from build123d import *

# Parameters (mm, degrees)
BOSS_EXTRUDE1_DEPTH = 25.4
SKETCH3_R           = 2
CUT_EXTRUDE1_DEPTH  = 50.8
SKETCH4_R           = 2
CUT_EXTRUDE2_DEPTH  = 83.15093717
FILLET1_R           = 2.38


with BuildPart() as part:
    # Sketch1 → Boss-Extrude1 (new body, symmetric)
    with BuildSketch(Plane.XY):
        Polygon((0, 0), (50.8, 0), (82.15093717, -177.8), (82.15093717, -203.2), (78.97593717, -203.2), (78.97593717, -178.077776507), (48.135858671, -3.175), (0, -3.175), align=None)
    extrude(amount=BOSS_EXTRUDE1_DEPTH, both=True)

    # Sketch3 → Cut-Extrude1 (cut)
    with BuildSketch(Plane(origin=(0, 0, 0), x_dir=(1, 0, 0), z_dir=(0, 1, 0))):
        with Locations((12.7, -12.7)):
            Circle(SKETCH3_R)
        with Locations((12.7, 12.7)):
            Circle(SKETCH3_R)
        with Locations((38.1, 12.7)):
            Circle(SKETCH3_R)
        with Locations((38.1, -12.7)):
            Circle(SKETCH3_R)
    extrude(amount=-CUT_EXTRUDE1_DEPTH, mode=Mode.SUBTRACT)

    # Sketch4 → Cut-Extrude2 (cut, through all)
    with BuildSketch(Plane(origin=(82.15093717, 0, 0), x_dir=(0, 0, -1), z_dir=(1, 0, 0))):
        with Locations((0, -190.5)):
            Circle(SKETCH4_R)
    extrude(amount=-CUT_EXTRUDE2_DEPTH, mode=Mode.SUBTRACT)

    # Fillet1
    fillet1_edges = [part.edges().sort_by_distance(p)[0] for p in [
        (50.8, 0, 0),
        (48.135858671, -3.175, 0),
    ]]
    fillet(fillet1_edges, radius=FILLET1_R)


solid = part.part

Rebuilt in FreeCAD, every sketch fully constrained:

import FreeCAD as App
import Part
import Sketcher
Q = App.Units.Quantity


def edges_at(feature, points):
    """Names of the edges that pass closest to the given points."""
    edges = feature.Shape.Edges
    near = lambda p: min(range(len(edges)), key=lambda i: edges[i].distToShape(Part.Vertex(*p))[0])
    return sorted({f"Edge{near(p) + 1}" for p in points})

doc = App.newDocument("Part")
body = doc.addObject("PartDesign::Body", "Body")

sketch1 = body.newObject("Sketcher::SketchObject", "Sketch")
sketch1.AttachmentSupport = (doc.getObject("XY_Plane"), [""])
sketch1.MapMode = "FlatFace"
sketch1.addGeometry([
    Part.LineSegment(App.Vector(50.8, 0, 0), App.Vector(0, 0, 0)),
    Part.LineSegment(App.Vector(0, 0, 0), App.Vector(0, -3.2, 0)),
    Part.LineSegment(App.Vector(0, -3.2, 0), App.Vector(48.1, -3.2, 0)),
    Part.LineSegment(App.Vector(48.1, -3.2, 0), App.Vector(79, -178.1, 0)),
    Part.LineSegment(App.Vector(79, -178.1, 0), App.Vector(79, -203.2, 0)),
    Part.LineSegment(App.Vector(79, -203.2, 0), App.Vector(82.2, -203.2, 0)),
    Part.LineSegment(App.Vector(82.2, -203.2, 0), App.Vector(82.2, -177.8, 0)),
    Part.LineSegment(App.Vector(82.2, -177.8, 0), App.Vector(50.8, 0, 0)),
], False)
sketch1.addConstraint([
    Sketcher.Constraint("Coincident", 0, 2, 1, 1),
    Sketcher.Constraint("Coincident", 1, 2, 2, 1),
    Sketcher.Constraint("Coincident", 2, 2, 3, 1),
    Sketcher.Constraint("Coincident", 3, 2, 4, 1),
    Sketcher.Constraint("Coincident", 4, 2, 5, 1),
    Sketcher.Constraint("Coincident", 5, 2, 6, 1),
    Sketcher.Constraint("Coincident", 6, 2, 7, 1),
    Sketcher.Constraint("Coincident", 7, 2, 0, 1),
    Sketcher.Constraint("Horizontal", 0),
    Sketcher.Constraint("Vertical", 1),
    Sketcher.Constraint("Horizontal", 2),
    Sketcher.Constraint("Vertical", 4),
    Sketcher.Constraint("Horizontal", 5),
    Sketcher.Constraint("Vertical", 6),
    Sketcher.Constraint("Coincident", 0, 2, -1, 1),
    Sketcher.Constraint("Parallel", 3, 7),
    Sketcher.Constraint("Equal", 5, 1),
    Sketcher.Constraint("DistanceX", 0, 2, 0, 1, Q("2 in")),
    Sketcher.Constraint("DistanceY", 6, 1, 6, 2, Q("1 in")),
    Sketcher.Constraint("DistanceY", 4, 2, -1, 1, Q("8 in")),
    Sketcher.Constraint("Angle", 3, Q("-80 deg")),
    Sketcher.Constraint("DistanceX", 5, 1, 5, 2, Q("0.125 in")),
    Sketcher.Constraint("DistanceX", 2, 1, 2, 2, Q("48.135859 mm")),
])
pad1 = body.newObject("PartDesign::Pad", "Pad")
pad1.Profile = sketch1
pad1.Length = Q("2 in")
pad1.Midplane = True

sketch2 = body.newObject("Sketcher::SketchObject", "Sketch001")
sketch2.AttachmentSupport = (doc.getObject("XZ_Plane"), [""])
sketch2.MapMode = "FlatFace"
sketch2.addGeometry([
    Part.Circle(App.Vector(12.7, 12.7, 0), App.Vector(0, 0, 1), 2),
    Part.Circle(App.Vector(12.7, -12.7, 0), App.Vector(0, 0, 1), 2),
    Part.Circle(App.Vector(38.1, -12.7, 0), App.Vector(0, 0, 1), 2),
    Part.Circle(App.Vector(38.1, 12.7, 0), App.Vector(0, 0, 1), 2),
], False)
sketch2.addConstraint([
    Sketcher.Constraint("Equal", 0, 1),
    Sketcher.Constraint("Equal", 1, 2),
    Sketcher.Constraint("Equal", 2, 3),
    Sketcher.Constraint("Symmetric", 0, 3, 1, 3, -1),
    Sketcher.Constraint("Symmetric", 2, 3, 3, 3, -1),
    Sketcher.Constraint("Horizontal", 1, 3, 2, 3),
    Sketcher.Constraint("DistanceY", 1, 3, 0, 3, Q("1 in")),
    Sketcher.Constraint("DistanceX", 1, 3, 2, 3, Q("1 in")),
    Sketcher.Constraint("DistanceX", -1, 1, 0, 3, Q("0.5 in")),
    Sketcher.Constraint("Diameter", 0, Q("4 mm")),
])
pocket1 = body.newObject("PartDesign::Pocket", "Pocket")
pocket1.Profile = sketch2
pocket1.Length = Q("2 in")
pocket1.Reversed = True

sketch3 = body.newObject("Sketcher::SketchObject", "Sketch002")
sketch3.AttachmentSupport = (doc.getObject("YZ_Plane"), [""])
sketch3.MapMode = "FlatFace"
sketch3.AttachmentOffset = App.Placement(App.Vector(0, 0, 82.150937), App.Rotation())
sketch3.addGeometry(Part.Circle(App.Vector(-190.5, 0, 0), App.Vector(0, 0, 1), 2), False)
sketch3.addConstraint([
    Sketcher.Constraint("PointOnObject", 0, 3, -1),
    Sketcher.Constraint("DistanceX", 0, 3, -1, 1, Q("7.5 in")),
    Sketcher.Constraint("Diameter", 0, Q("4 mm")),
])
pocket2 = body.newObject("PartDesign::Pocket", "Pocket001")
pocket2.Profile = sketch3
pocket2.Type = "ThroughAll"
doc.recompute()

fillet = body.newObject("PartDesign::Fillet", "Fillet")
fillet.Base = (pocket2, edges_at(pocket2, [(50.8, 0, 0), (48.136, -3.175, 0)]))
fillet.Radius = 2.38

doc.recompute()
